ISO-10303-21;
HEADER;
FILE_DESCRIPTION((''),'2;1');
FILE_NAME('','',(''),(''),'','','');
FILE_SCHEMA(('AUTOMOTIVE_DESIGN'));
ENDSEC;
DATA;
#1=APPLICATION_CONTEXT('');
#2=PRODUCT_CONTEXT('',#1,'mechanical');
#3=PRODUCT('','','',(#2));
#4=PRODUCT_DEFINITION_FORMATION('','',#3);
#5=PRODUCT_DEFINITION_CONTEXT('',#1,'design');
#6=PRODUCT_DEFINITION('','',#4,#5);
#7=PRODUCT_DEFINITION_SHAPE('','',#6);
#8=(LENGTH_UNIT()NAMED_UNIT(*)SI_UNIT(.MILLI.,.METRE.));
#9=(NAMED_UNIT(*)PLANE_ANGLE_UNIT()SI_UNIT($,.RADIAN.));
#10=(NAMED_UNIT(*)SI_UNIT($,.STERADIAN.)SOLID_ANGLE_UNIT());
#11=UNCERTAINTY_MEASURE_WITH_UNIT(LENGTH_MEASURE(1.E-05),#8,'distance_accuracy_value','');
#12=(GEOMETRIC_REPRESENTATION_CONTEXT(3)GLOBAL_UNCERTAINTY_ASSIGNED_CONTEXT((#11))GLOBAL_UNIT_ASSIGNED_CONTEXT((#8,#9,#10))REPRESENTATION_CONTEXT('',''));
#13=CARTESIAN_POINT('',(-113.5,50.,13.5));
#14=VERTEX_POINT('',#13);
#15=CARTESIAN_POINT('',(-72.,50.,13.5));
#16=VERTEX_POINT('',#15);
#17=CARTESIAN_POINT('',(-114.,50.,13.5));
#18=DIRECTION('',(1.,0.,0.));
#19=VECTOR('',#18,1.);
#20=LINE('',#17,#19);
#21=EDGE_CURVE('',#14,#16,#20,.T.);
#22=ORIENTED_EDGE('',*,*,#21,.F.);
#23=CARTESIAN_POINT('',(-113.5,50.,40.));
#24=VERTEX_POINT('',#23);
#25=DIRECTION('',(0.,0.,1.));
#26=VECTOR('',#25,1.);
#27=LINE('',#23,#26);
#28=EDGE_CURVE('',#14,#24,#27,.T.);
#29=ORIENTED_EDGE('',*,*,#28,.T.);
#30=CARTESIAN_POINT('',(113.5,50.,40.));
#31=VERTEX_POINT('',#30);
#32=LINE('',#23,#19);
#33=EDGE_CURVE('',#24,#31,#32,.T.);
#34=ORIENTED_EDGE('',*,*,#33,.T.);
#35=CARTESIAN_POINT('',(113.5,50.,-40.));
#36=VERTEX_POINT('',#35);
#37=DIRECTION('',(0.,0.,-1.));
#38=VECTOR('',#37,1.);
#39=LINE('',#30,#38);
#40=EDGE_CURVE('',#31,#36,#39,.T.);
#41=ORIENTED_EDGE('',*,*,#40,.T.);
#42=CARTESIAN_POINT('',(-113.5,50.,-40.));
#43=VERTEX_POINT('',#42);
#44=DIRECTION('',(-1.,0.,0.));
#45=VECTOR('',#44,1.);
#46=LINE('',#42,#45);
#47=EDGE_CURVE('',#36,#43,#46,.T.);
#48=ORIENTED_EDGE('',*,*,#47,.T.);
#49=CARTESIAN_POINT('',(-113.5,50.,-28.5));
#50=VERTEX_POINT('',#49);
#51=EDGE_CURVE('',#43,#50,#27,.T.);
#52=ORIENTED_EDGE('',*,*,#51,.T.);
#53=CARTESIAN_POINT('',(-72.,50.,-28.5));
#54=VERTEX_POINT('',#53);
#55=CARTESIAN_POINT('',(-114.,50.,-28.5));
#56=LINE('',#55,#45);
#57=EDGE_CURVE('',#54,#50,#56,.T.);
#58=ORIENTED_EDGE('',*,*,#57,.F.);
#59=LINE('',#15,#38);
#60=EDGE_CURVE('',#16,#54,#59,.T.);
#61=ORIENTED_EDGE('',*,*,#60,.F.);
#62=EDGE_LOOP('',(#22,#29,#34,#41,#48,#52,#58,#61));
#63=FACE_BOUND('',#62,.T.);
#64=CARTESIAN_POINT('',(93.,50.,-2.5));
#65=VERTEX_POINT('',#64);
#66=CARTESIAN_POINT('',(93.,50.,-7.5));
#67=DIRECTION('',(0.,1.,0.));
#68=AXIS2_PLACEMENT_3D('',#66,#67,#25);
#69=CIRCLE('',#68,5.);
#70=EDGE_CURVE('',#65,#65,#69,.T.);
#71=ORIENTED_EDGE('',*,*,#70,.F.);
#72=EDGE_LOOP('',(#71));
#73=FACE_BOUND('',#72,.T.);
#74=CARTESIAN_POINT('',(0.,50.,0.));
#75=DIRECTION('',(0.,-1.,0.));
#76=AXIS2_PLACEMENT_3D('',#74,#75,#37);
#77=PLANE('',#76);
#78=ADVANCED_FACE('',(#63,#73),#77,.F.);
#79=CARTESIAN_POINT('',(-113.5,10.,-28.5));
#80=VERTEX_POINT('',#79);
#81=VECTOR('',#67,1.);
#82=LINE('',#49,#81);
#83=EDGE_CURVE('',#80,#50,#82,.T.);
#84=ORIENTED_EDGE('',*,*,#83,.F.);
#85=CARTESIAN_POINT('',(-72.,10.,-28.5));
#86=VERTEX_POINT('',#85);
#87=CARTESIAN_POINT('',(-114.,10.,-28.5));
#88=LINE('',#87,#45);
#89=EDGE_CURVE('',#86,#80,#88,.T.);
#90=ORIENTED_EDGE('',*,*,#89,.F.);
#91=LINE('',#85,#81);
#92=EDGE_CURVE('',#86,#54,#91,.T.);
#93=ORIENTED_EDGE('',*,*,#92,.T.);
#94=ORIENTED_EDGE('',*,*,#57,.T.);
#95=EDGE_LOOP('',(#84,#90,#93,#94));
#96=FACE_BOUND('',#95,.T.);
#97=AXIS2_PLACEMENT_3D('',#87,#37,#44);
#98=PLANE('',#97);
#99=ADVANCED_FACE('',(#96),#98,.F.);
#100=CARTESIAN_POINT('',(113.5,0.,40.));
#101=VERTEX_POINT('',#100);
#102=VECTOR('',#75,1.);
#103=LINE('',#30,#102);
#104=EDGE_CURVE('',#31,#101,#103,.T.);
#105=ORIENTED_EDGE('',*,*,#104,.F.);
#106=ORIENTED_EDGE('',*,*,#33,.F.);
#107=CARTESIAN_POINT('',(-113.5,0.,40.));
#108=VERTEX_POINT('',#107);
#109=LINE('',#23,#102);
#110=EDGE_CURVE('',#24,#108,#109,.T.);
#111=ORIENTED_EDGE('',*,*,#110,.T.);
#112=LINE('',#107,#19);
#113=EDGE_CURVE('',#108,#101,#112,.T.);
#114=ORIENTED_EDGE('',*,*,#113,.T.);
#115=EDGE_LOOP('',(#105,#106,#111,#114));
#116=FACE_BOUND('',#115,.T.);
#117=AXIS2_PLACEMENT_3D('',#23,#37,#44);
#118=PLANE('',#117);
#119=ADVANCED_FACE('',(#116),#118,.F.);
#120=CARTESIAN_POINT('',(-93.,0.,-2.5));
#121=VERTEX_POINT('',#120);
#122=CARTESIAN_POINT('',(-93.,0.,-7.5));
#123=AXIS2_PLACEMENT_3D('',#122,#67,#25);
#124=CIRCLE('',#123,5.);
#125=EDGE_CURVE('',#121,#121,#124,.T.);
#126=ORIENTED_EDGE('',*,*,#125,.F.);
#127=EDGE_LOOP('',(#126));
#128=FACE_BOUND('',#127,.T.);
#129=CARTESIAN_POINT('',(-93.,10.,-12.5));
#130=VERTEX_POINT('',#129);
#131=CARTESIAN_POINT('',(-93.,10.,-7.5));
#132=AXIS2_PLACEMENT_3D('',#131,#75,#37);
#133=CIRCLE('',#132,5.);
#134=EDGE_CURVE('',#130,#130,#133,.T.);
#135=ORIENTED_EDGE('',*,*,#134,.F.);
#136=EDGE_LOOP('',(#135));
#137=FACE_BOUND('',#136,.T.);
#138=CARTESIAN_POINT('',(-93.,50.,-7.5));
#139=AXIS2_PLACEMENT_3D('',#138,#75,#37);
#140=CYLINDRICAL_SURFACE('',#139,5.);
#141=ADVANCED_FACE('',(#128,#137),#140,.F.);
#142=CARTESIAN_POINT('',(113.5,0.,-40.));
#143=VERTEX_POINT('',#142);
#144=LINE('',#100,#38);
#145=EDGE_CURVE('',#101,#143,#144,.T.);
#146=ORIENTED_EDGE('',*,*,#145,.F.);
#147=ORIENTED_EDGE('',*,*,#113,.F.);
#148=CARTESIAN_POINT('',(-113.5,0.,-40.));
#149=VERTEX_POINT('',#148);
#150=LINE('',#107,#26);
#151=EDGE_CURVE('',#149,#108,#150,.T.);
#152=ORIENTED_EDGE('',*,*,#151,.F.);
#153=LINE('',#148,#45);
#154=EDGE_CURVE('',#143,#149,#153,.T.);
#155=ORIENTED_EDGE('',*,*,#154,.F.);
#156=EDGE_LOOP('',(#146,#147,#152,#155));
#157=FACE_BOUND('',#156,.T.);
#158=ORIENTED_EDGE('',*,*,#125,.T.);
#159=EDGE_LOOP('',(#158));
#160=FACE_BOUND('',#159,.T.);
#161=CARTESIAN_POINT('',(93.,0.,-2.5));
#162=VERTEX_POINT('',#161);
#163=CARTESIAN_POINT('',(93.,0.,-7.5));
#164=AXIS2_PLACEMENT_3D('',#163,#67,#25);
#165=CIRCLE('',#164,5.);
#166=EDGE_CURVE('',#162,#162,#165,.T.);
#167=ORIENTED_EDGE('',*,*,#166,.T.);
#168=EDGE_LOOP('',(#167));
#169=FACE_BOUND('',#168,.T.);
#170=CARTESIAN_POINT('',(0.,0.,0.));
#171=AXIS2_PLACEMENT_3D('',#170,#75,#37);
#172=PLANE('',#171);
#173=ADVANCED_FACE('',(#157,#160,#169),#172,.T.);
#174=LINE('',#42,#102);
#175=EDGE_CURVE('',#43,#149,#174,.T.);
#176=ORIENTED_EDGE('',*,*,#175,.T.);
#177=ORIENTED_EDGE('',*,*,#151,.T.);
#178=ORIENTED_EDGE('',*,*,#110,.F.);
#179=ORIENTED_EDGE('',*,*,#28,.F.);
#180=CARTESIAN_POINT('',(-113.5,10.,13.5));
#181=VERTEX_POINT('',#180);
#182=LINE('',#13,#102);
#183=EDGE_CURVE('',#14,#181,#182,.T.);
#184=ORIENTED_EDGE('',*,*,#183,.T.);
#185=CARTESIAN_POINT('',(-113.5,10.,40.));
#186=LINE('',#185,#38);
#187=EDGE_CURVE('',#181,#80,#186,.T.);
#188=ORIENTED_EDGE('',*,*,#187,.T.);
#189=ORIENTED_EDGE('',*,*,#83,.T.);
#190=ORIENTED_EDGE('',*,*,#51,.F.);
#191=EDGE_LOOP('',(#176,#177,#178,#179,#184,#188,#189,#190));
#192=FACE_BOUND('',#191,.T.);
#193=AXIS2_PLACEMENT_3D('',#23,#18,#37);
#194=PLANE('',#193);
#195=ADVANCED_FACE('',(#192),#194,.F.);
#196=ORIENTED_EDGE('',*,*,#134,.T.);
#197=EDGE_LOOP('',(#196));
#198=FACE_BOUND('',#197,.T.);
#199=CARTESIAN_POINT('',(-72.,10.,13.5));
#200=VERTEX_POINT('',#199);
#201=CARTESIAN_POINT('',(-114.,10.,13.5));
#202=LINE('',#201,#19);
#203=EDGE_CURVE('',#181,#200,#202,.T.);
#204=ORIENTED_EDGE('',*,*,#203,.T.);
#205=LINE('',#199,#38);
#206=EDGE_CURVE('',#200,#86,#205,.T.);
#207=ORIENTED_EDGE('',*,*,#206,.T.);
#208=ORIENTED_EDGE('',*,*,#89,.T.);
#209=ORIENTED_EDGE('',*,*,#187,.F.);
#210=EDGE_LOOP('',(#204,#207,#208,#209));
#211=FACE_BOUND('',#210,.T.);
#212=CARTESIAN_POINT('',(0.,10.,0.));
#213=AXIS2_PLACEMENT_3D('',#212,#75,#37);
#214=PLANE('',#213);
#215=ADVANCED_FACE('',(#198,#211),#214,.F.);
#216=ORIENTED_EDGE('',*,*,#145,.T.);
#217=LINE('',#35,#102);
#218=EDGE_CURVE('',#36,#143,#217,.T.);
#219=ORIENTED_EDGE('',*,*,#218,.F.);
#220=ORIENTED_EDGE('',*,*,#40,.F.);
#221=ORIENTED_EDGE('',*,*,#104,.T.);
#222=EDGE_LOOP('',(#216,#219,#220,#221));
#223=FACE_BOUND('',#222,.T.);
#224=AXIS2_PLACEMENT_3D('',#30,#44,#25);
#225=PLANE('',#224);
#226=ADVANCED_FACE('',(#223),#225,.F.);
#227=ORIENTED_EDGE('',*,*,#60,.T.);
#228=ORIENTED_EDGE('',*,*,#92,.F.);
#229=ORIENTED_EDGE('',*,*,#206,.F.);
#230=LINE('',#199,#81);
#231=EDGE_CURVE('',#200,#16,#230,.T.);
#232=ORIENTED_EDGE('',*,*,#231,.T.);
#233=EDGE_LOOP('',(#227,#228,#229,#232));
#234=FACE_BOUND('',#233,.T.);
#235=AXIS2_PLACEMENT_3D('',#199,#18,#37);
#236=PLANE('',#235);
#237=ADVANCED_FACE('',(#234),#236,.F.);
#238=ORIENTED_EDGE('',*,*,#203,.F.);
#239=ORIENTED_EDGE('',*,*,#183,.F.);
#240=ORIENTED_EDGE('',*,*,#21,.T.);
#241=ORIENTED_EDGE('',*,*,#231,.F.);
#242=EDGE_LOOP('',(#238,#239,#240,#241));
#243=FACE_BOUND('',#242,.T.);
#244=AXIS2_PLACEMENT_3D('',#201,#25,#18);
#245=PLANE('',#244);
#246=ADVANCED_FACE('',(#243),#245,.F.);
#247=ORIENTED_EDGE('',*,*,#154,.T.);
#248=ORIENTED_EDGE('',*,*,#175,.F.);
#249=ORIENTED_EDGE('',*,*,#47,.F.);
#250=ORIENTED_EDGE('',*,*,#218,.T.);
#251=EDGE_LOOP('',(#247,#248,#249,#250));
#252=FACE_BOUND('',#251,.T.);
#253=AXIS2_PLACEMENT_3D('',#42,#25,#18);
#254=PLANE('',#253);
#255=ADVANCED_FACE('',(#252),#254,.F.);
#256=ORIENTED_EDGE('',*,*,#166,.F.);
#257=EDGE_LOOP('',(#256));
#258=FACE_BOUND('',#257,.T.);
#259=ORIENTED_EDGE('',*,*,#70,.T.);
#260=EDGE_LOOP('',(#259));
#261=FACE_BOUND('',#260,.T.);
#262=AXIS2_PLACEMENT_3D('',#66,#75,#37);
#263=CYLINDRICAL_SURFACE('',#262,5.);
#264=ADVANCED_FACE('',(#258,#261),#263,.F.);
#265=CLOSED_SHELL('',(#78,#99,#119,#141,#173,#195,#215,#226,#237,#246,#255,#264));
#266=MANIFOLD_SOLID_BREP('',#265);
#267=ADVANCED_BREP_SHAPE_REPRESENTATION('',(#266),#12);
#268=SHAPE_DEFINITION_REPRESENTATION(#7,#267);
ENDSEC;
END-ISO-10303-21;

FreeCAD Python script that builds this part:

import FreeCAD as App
import Part
import Sketcher

doc = App.newDocument("Part")
body = doc.addObject("PartDesign::Body", "Body")

# Sketch on XZ plane
sketch1 = doc.addObject("Sketcher::SketchObject", "Sketch")
body.addObject(sketch1)
sketch1.AttachmentSupport = (doc.XZ_Plane, [""])
sketch1.MapMode = "FlatFace"
sketch1.addGeometry([
    Part.LineSegment(App.Vector(-114, -40, 0), App.Vector(-114, 40, 0)),  # 0
    Part.LineSegment(App.Vector(-114, 40, 0), App.Vector(114, 40, 0)),  # 1
    Part.LineSegment(App.Vector(114, 40, 0), App.Vector(114, -40, 0)),  # 2
    Part.LineSegment(App.Vector(114, -40, 0), App.Vector(-114, -40, 0)),  # 3
    Part.Circle(App.Vector(-93, -8, 0), App.Vector(0, 0, 1), 5),  # 4
    Part.Circle(App.Vector(93, -8, 0), App.Vector(0, 0, 1), 5),  # 5
], False)
sketch1.addConstraint([
    Sketcher.Constraint("Coincident", 0, 2, 1, 1),
    Sketcher.Constraint("Coincident", 1, 2, 2, 1),
    Sketcher.Constraint("Coincident", 2, 2, 3, 1),
    Sketcher.Constraint("Coincident", 3, 2, 0, 1),
    Sketcher.Constraint("Vertical", 0),
    Sketcher.Constraint("Horizontal", 1),
    Sketcher.Constraint("Vertical", 2),
    Sketcher.Constraint("Horizontal", 3),
    Sketcher.Constraint("Equal", 4, 5),
    Sketcher.Constraint("Symmetric", 0, 2, 2, 2, -1, 1),
    Sketcher.Constraint("Symmetric", 4, 3, 5, 3, -2),
    Sketcher.Constraint("Diameter", 4, 10.0),
    Sketcher.Constraint("DistanceX", 1, 1, 1, 2, 227.0),
    Sketcher.Constraint("DistanceY", 0, 1, 0, 2, 80.0),
    Sketcher.Constraint("DistanceX", 4, 3, -1, 1, 93.0),
    Sketcher.Constraint("DistanceY", 4, 3, -1, 1, 7.5),
])
pad1 = doc.addObject("PartDesign::Pad", "Pad")
body.addObject(pad1)
pad1.Profile = sketch1
pad1.Length = 50
pad1.Reversed = True

# Sketch on XZ plane
sketch2 = doc.addObject("Sketcher::SketchObject", "Sketch001")
body.addObject(sketch2)
sketch2.AttachmentSupport = (doc.XZ_Plane, [""])
sketch2.MapMode = "FlatFace"
sketch2.AttachmentOffset = App.Placement(App.Vector(0, 0, -50), App.Rotation())
sketch2.addGeometry([
    Part.LineSegment(App.Vector(-114, -28, 0), App.Vector(-114, 14, 0)),
    Part.LineSegment(App.Vector(-114, 14, 0), App.Vector(-72, 14, 0)),
    Part.LineSegment(App.Vector(-72, 14, 0), App.Vector(-72, -28, 0)),
    Part.LineSegment(App.Vector(-72, -28, 0), App.Vector(-114, -28, 0)),
], False)
sketch2.addConstraint([
    Sketcher.Constraint("Coincident", 0, 2, 1, 1),
    Sketcher.Constraint("Coincident", 1, 2, 2, 1),
    Sketcher.Constraint("Coincident", 2, 2, 3, 1),
    Sketcher.Constraint("Coincident", 3, 2, 0, 1),
    Sketcher.Constraint("Vertical", 0),
    Sketcher.Constraint("Horizontal", 1),
    Sketcher.Constraint("Vertical", 2),
    Sketcher.Constraint("Horizontal", 3),
    Sketcher.Constraint("Equal", 3, 0),
    Sketcher.Constraint("DistanceX", 1, 1, 1, 2, 42.0),
    Sketcher.Constraint("DistanceX", 0, 2, -1, 1, 114.0),
    Sketcher.Constraint("DistanceY", -1, 1, 0, 2, 13.5),
])
pocket1 = doc.addObject("PartDesign::Pocket", "Pocket")
body.addObject(pocket1)
pocket1.Profile = sketch2
pocket1.Length = 40
pocket1.Reversed = True

doc.recompute()
